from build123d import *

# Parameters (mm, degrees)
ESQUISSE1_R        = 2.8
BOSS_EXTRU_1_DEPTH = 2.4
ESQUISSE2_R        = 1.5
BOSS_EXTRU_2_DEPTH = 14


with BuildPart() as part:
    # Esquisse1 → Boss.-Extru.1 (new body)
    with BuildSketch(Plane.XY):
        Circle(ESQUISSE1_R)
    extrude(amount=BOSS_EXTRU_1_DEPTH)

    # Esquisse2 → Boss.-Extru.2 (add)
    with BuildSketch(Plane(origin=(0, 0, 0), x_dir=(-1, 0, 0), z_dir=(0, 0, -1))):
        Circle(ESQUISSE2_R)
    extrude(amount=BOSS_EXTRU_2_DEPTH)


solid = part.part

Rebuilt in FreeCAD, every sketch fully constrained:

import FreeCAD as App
import Part
import Sketcher
from FreeCAD import Vector

doc = App.newDocument("Part")
body = doc.addObject("PartDesign::Body", "Body")

# Sketch on XY plane
sketch1 = body.newObject("Sketcher::SketchObject", "Sketch")
sketch1.AttachmentSupport = (doc.getObject("XY_Plane"), [""])
sketch1.MapMode = "FlatFace"
sketch1.addGeometry(Part.Circle(Vector(0, 0, 0), Vector(0, 0, 1), 2.8), False)
sketch1.addConstraint(Sketcher.Constraint("Coincident", 0, 3, -1, 1))
sketch1.addConstraint(Sketcher.Constraint("Diameter", 0, 5.6))
pad1 = body.newObject("PartDesign::Pad", "Pad")
pad1.Profile = sketch1
pad1.Length = 2.4

# Sketch on XY plane
sketch2 = body.newObject("Sketcher::SketchObject", "Sketch001")
sketch2.AttachmentSupport = (doc.getObject("XY_Plane"), [""])
sketch2.MapMode = "FlatFace"
sketch2.addGeometry(Part.Circle(Vector(0, 0, 0), Vector(0, 0, 1), 1.5), False)
sketch2.addConstraint(Sketcher.Constraint("Coincident", 0, 3, -1, 1))
sketch2.addConstraint(Sketcher.Constraint("Diameter", 0, 3.0))
pad2 = body.newObject("PartDesign::Pad", "Pad001")
pad2.Profile = sketch2
pad2.Length = 14
pad2.Reversed = True

doc.recompute()
